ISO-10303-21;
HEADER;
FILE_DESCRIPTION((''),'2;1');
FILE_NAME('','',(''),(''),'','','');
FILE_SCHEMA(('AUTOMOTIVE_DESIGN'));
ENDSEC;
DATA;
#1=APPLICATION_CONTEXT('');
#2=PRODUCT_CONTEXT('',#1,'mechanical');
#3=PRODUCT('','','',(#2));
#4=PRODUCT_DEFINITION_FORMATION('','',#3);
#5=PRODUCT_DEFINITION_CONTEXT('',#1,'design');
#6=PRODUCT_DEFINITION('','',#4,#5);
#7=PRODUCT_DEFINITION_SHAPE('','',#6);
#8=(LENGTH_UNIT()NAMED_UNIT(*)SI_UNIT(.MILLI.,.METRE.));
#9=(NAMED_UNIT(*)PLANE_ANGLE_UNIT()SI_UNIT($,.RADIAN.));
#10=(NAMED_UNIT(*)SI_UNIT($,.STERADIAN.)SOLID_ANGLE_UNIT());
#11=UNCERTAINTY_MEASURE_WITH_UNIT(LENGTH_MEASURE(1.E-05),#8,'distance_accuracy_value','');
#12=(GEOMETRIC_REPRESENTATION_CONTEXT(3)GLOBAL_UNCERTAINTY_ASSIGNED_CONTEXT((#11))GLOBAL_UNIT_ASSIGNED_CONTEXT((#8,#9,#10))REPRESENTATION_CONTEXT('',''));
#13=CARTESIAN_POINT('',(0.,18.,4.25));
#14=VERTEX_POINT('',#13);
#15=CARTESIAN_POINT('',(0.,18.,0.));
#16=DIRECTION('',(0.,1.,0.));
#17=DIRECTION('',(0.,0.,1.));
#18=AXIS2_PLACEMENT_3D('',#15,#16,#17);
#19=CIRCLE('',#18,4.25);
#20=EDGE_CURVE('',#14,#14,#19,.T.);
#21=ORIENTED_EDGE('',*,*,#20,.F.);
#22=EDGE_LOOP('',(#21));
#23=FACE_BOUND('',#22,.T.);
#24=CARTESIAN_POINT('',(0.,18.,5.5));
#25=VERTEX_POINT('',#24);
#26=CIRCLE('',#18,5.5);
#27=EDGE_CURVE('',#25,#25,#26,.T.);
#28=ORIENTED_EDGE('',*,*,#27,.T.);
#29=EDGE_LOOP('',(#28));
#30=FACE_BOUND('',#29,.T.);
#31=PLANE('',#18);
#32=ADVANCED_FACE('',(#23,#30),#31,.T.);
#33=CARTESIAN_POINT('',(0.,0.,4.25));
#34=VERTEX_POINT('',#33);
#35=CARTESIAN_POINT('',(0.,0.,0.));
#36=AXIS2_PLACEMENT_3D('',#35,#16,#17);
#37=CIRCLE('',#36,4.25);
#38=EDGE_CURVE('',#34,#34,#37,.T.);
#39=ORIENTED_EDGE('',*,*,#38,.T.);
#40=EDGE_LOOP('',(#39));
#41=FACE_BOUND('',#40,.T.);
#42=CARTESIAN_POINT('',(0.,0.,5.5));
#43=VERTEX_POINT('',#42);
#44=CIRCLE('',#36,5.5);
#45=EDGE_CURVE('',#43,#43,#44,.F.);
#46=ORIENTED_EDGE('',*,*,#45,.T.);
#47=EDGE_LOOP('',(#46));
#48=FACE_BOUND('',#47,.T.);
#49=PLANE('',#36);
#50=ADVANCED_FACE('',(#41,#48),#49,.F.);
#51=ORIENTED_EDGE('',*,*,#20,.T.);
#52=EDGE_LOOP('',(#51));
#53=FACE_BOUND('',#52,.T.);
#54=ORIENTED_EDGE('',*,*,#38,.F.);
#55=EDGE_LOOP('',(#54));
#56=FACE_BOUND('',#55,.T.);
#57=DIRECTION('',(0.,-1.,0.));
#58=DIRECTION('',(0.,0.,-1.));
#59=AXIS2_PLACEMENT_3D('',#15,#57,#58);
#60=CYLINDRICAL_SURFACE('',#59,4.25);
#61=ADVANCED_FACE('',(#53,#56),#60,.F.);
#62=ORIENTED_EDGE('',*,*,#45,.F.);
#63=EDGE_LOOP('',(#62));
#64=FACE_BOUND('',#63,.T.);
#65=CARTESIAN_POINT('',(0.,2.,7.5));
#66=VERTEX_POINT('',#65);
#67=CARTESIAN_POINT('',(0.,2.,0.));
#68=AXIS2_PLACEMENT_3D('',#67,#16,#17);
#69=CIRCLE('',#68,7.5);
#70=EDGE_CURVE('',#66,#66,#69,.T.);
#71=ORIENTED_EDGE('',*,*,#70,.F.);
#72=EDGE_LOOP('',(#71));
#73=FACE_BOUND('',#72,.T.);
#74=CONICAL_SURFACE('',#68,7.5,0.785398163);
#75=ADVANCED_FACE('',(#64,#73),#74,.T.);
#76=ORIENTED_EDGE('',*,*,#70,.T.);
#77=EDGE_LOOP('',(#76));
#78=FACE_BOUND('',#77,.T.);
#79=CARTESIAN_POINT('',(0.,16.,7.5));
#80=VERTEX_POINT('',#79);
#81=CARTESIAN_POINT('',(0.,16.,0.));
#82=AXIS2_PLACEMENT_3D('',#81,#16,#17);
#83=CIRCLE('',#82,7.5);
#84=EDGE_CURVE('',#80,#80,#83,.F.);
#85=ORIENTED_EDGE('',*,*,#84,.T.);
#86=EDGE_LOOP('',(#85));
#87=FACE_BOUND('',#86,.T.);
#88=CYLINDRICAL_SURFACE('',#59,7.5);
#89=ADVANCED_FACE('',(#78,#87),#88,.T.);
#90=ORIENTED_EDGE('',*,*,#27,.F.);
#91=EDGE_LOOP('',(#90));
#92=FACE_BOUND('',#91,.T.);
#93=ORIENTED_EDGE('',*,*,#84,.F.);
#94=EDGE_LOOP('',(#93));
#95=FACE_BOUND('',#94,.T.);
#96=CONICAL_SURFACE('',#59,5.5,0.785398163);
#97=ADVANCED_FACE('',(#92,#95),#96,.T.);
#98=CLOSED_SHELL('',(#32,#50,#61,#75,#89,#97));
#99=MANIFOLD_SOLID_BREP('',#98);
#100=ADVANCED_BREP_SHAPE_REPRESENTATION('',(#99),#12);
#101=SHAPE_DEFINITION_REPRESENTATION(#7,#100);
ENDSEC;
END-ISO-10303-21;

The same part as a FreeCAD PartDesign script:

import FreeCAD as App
import Part
import Sketcher
from FreeCAD import Vector


def edges_at(feature, points):
    """Names of the edges that pass closest to the given points."""
    edges = feature.Shape.Edges
    near = lambda p: min(range(len(edges)), key=lambda i: edges[i].distToShape(Part.Vertex(*p))[0])
    return sorted({f"Edge{near(p) + 1}" for p in points})

doc = App.newDocument("Part")
body = doc.addObject("PartDesign::Body", "Body")

sketch1 = doc.addObject("Sketcher::SketchObject", "Sketch")
body.addObject(sketch1)
sketch1.AttachmentSupport = (doc.XZ_Plane, [""])
sketch1.MapMode = "FlatFace"
sketch1.addGeometry([
    Part.Circle(Vector(0, 0, 0), Vector(0, 0, 1), 7.5),
    Part.Circle(Vector(0, 0, 0), Vector(0, 0, 1), 4.2),
], False)
sketch1.addConstraint([
    Sketcher.Constraint("Coincident", 0, 3, -1, 1),
    Sketcher.Constraint("Coincident", 1, 3, -1, 1),
    Sketcher.Constraint("Diameter", 0, 15.0),
    Sketcher.Constraint("Diameter", 1, 8.5),
])
pad1 = doc.addObject("PartDesign::Pad", "Pad")
body.addObject(pad1)
pad1.Profile = sketch1
pad1.Length = 18
pad1.Reversed = True
doc.recompute()

chamfer = doc.addObject("PartDesign::Chamfer", "Chamfer")
body.addObject(chamfer)
chamfer.Base = (pad1, edges_at(pad1, [(0, 0, -7.5), (0, 18, -7.5)]))
chamfer.Size = 2

doc.recompute()
